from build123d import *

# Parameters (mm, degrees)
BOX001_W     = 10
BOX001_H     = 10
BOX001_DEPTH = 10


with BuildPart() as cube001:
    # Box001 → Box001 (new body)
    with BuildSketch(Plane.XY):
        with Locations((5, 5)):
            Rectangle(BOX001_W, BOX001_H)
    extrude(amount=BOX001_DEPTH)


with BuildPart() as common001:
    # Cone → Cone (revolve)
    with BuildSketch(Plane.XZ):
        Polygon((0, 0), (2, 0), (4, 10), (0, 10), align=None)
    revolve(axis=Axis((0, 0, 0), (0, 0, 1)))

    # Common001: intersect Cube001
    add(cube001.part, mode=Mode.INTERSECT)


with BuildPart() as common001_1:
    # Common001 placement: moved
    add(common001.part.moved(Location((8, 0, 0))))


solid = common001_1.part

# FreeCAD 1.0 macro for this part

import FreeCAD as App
import Part
import Sketcher
from FreeCAD import Vector


def add_polygon(sketch, points):
    """Adds a closed chain of lines whose ends are joined by coincident constraints."""
    first, n = sketch.GeometryCount, len(points)
    for a, b in zip(points, points[1:] + points[:1]):
        sketch.addGeometry(Part.LineSegment(App.Vector(*a, 0), App.Vector(*b, 0)), False)
    for i in range(n):
        sketch.addConstraint(Sketcher.Constraint("Coincident", first + i, 2, first + (i + 1) % n, 1))

doc = App.newDocument("Part")
body = doc.addObject("PartDesign::Body", "Body")

# Sketch on XY plane
sketch1 = body.newObject("Sketcher::SketchObject", "Sketch")
sketch1.AttachmentSupport = (doc.getObject("XY_Plane"), [""])
sketch1.MapMode = "FlatFace"
add_polygon(sketch1, [(0, 10), (0, 0), (10, 0), (10, 10)])  # lines 0-3
sketch1.addConstraint([
    Sketcher.Constraint("Vertical", 0),
    Sketcher.Constraint("Horizontal", 1),
    Sketcher.Constraint("Vertical", 2),
    Sketcher.Constraint("Horizontal", 3),
    Sketcher.Constraint("Coincident", 0, 2, -1, 1),
    Sketcher.Constraint("Equal", 3, 0),
    Sketcher.Constraint("DistanceX", 1, 1, 1, 2, 10.0),
])
pad1 = body.newObject("PartDesign::Pad", "Pad")
pad1.Profile = sketch1
pad1.Length = 10
body2 = doc.addObject("PartDesign::Body", "Body001")

# Sketch on XZ plane
sketch2 = body2.newObject("Sketcher::SketchObject", "Sketch001")
sketch2.AttachmentSupport = (doc.getObject("XZ_Plane001"), [""])
sketch2.MapMode = "FlatFace"
add_polygon(sketch2, [(0, 0), (2, 0), (4, 10), (0, 10)])  # lines 0-3
sketch2.addConstraint([
    Sketcher.Constraint("Horizontal", 0),
    Sketcher.Constraint("Horizontal", 2),
    Sketcher.Constraint("Vertical", 3),
    Sketcher.Constraint("Coincident", 3, 2, -1, 1),
    Sketcher.Constraint("DistanceX", 0, 1, 0, 2, 2.0),
    Sketcher.Constraint("DistanceX", 2, 2, 2, 1, 4.0),
    Sketcher.Constraint("DistanceY", 3, 2, 3, 1, 10.0),
])
revolution = body2.newObject("PartDesign::Revolution", "Revolution")
revolution.Profile = sketch2
revolution.ReferenceAxis = (sketch2, ["V_Axis"])
revolution.Angle = 360
doc.recompute()

boolean = body2.newObject("PartDesign::Boolean", "Boolean")
boolean.Type = "Common"
boolean.addObjects([body])
body3 = doc.addObject("PartDesign::Body", "Body002")
doc.recompute()

body2.Placement = App.Placement(Vector(8, 0, 0), App.Rotation(Vector(0, 0, 1), 0))
boolean2 = body3.newObject("PartDesign::Boolean", "Boolean001")
boolean2.Type = "Fuse"
boolean2.addObjects([body2])

doc.recompute()
